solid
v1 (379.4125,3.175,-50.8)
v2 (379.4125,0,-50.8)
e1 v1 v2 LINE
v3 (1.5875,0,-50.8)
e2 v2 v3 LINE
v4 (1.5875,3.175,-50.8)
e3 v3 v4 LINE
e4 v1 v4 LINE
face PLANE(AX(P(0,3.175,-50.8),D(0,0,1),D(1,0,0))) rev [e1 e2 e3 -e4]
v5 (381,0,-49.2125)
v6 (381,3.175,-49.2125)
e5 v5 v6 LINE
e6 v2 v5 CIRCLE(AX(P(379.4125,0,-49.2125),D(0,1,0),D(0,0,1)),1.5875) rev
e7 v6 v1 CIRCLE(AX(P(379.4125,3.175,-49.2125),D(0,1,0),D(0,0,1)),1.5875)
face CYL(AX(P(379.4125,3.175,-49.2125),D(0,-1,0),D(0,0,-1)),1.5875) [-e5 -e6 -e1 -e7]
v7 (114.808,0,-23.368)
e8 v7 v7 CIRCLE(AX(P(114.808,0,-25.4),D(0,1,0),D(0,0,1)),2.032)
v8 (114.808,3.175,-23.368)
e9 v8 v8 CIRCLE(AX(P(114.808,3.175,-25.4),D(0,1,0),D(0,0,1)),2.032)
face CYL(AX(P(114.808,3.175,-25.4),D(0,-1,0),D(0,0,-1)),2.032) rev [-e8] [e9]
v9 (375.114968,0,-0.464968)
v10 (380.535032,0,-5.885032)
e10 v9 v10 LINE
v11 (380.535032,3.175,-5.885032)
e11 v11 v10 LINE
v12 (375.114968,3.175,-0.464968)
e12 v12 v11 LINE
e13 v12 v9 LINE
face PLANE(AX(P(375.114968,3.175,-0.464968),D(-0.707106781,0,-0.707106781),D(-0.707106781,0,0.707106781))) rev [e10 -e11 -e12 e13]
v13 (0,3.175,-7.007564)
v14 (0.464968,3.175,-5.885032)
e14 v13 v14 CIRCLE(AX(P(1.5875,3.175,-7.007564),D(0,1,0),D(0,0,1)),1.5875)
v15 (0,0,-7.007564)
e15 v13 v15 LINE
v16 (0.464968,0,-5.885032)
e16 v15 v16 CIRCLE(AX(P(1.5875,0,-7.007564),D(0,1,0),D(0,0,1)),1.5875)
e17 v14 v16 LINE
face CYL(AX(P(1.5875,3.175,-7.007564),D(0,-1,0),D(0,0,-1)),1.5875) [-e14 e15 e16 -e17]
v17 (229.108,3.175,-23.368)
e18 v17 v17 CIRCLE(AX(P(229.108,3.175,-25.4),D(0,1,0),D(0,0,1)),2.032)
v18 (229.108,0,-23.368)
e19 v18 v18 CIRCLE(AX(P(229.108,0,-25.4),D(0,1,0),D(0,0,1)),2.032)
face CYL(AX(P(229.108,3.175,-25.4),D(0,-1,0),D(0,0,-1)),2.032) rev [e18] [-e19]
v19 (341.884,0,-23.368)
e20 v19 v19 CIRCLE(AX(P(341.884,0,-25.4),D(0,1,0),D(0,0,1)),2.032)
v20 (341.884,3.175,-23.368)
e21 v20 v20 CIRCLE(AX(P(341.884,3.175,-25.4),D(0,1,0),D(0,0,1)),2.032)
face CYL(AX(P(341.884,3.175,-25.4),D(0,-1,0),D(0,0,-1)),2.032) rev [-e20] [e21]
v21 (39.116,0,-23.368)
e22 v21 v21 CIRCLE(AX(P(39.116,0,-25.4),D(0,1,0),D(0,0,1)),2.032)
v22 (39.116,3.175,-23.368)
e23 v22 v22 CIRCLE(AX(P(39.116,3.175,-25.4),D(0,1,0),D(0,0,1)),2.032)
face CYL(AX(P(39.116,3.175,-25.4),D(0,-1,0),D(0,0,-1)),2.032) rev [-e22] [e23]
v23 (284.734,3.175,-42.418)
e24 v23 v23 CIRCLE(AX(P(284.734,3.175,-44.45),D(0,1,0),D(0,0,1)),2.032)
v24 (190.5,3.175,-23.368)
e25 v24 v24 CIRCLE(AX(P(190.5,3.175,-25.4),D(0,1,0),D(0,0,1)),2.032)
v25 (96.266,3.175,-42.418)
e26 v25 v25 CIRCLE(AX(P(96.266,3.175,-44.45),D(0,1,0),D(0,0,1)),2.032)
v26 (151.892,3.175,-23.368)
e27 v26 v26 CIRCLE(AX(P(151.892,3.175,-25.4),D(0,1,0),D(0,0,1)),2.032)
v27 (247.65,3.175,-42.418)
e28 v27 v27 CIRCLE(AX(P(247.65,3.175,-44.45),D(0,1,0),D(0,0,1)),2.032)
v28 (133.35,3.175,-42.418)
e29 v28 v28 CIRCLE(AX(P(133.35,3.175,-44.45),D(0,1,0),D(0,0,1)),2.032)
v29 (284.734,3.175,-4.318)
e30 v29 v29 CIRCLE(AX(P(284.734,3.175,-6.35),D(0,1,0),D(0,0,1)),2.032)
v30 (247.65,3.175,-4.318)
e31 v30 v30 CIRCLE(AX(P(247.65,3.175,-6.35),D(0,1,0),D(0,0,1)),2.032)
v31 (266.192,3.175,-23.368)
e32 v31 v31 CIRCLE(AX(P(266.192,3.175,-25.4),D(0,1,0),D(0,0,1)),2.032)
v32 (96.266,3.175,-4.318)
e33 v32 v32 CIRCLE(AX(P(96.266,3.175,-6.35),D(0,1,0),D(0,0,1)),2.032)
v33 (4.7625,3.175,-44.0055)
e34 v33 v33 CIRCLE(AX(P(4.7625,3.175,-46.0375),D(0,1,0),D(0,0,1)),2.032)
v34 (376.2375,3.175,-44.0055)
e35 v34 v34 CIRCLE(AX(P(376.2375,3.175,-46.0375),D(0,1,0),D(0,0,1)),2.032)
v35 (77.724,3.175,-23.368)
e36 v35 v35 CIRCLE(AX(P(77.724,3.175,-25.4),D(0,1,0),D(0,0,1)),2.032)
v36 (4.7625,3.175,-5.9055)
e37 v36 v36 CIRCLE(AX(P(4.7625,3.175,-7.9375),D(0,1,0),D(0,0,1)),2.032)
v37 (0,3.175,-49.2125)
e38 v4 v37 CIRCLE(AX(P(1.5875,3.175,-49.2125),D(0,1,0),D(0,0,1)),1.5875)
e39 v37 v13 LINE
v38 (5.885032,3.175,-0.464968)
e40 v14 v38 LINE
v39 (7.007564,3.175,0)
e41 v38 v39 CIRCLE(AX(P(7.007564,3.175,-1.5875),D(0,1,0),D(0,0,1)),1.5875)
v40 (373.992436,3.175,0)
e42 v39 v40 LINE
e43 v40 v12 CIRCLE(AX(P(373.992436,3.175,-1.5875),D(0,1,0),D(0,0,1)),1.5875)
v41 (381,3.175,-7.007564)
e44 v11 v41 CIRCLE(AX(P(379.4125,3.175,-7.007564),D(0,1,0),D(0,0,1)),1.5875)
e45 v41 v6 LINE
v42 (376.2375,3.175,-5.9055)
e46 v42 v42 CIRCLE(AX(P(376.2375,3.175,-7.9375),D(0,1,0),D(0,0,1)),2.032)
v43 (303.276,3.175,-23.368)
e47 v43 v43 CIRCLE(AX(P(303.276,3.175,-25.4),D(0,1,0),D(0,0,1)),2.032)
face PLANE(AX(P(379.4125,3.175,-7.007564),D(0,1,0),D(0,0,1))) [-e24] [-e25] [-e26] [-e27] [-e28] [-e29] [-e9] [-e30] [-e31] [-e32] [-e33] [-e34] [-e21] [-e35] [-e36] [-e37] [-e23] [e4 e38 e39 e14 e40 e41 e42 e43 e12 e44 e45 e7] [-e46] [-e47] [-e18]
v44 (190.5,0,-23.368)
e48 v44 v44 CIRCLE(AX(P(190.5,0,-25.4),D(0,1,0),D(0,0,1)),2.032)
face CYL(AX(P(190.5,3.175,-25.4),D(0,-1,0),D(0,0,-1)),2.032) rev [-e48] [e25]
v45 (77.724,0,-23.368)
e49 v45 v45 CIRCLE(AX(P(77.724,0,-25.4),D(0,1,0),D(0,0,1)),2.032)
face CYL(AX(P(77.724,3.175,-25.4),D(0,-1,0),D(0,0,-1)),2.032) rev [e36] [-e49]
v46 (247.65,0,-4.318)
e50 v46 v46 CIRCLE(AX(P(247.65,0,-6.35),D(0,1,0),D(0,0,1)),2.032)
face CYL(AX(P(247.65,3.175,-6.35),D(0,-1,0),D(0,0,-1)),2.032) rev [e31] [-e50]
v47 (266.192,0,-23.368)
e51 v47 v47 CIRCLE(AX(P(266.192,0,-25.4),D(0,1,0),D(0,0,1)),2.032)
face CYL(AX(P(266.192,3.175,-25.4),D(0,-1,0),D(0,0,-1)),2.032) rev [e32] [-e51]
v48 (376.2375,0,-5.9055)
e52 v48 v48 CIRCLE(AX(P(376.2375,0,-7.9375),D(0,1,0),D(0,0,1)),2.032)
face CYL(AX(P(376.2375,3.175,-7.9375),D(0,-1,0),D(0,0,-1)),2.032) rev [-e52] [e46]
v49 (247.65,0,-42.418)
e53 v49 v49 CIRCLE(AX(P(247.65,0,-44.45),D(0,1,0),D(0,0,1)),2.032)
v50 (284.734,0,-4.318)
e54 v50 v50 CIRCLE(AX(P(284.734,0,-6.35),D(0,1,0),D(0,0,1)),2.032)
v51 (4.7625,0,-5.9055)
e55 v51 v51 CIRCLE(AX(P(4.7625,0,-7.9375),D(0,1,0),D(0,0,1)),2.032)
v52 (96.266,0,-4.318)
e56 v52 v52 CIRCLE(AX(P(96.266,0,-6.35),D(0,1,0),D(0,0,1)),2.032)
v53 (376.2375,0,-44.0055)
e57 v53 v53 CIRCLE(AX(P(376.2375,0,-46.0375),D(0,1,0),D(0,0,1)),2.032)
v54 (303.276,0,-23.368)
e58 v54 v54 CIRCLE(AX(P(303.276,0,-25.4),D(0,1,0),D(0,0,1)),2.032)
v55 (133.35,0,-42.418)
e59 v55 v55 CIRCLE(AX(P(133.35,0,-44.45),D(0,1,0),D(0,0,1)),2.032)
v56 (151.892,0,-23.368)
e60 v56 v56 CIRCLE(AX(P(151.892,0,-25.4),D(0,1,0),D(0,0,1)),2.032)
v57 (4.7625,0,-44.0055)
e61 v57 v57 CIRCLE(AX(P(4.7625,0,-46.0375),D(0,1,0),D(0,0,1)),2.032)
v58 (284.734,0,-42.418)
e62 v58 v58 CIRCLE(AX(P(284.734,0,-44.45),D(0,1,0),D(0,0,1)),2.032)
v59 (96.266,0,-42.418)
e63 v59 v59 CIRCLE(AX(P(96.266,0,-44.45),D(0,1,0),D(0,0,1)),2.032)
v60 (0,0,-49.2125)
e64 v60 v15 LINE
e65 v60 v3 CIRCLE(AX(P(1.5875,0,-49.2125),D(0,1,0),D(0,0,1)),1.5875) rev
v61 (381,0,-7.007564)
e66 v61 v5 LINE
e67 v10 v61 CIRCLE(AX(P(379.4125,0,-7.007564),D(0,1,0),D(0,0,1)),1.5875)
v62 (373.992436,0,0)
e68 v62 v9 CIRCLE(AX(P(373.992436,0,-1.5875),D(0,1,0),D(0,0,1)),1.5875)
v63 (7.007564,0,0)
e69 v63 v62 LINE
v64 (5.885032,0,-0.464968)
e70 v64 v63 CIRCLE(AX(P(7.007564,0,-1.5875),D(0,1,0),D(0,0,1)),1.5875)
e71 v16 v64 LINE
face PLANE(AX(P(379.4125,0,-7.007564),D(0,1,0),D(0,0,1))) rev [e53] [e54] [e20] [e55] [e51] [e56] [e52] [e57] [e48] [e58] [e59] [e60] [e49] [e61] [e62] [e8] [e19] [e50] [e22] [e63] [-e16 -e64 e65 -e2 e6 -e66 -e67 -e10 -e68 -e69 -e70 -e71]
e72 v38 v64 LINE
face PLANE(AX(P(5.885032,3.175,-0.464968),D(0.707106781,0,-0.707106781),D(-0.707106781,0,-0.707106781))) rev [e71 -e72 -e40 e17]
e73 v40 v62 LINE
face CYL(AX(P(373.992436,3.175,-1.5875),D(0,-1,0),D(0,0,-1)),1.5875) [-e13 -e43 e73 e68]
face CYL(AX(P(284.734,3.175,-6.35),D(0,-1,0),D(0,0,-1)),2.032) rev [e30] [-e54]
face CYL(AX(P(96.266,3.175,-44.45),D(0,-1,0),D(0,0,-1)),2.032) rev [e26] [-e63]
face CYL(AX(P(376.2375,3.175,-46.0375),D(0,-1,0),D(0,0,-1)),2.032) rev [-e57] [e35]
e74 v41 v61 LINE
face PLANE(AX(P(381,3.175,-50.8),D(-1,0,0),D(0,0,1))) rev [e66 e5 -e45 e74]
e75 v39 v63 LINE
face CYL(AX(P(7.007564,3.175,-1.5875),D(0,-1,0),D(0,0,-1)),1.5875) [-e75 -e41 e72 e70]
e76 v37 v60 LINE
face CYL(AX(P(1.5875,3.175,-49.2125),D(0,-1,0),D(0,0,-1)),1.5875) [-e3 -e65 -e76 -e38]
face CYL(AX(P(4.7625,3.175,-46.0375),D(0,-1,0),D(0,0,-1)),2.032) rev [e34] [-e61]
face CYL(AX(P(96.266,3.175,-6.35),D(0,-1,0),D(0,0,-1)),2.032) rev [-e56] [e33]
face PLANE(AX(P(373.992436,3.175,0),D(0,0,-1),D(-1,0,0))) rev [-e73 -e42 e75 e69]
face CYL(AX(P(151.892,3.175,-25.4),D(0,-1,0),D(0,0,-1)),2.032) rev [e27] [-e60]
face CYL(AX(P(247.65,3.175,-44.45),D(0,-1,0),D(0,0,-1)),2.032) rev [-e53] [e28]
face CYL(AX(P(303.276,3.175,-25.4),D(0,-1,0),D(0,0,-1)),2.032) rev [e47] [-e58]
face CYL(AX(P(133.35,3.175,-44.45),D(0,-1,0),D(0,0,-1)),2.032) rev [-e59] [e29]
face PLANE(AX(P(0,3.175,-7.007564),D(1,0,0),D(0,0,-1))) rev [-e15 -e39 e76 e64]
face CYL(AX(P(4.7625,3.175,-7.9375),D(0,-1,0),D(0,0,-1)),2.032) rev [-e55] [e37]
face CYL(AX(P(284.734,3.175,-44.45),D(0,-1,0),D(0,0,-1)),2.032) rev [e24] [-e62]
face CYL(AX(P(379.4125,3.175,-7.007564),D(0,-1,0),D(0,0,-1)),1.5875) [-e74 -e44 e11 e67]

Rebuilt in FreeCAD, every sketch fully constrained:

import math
import FreeCAD as App
import Part
import Sketcher

V = App.Vector
Q = App.Units.Quantity


def edges_at(feature, points):
    """Names of the edges that pass closest to the given points."""
    edges = feature.Shape.Edges
    near = lambda p: min(range(len(edges)), key=lambda i: edges[i].distToShape(Part.Vertex(*p))[0])
    return sorted({f"Edge{near(p) + 1}" for p in points})

doc = App.newDocument("Part")
body = doc.addObject("PartDesign::Body", "Body")

sketch1 = doc.addObject("Sketcher::SketchObject", "Sketch")
body.addObject(sketch1)
sketch1.AttachmentSupport = (doc.XZ_Plane, [""])
sketch1.MapMode = "FlatFace"
sketch1.addGeometry([
    Part.LineSegment(V(0, -50.8, 0), V(0, -7, 0)),
    Part.ArcOfCircle(Part.Circle(V(1.6, -7, 0), V(0, 0, 1), 1.6), math.radians(135), math.radians(180)),
    Part.LineSegment(V(0.5, -5.9, 0), V(5.9, -0.5, 0)),
    Part.ArcOfCircle(Part.Circle(V(7, -1.6, 0), V(0, 0, 1), 1.6), math.radians(90), math.radians(135)),
    Part.LineSegment(V(7, 0, 0), V(374, 0, 0)),
    Part.ArcOfCircle(Part.Circle(V(374, -1.6, 0), V(0, 0, 1), 1.6), math.radians(45), math.radians(90)),
    Part.LineSegment(V(375.1, -0.5, 0), V(380.5, -5.9, 0)),
    Part.ArcOfCircle(Part.Circle(V(379.4, -7, 0), V(0, 0, 1), 1.6), math.radians(0), math.radians(45)),
    Part.LineSegment(V(381, -7, 0), V(381, -50.8, 0)),
    Part.LineSegment(V(381, -50.8, 0), V(0, -50.8, 0)),
], False)
sketch1.addConstraint([
    Sketcher.Constraint("Tangent", 0, 2, 1, 2),
    Sketcher.Constraint("Tangent", 1, 1, 2, 1),
    Sketcher.Constraint("Tangent", 2, 2, 3, 2),
    Sketcher.Constraint("Tangent", 3, 1, 4, 1),
    Sketcher.Constraint("Tangent", 4, 2, 5, 2),
    Sketcher.Constraint("Tangent", 5, 1, 6, 1),
    Sketcher.Constraint("Tangent", 6, 2, 7, 2),
    Sketcher.Constraint("Tangent", 7, 1, 8, 1),
    Sketcher.Constraint("Coincident", 8, 2, 9, 1),
    Sketcher.Constraint("Coincident", 9, 2, 0, 1),
    Sketcher.Constraint("Vertical", 0),
    Sketcher.Constraint("Horizontal", 4),
    Sketcher.Constraint("Vertical", 8),
    Sketcher.Constraint("Horizontal", 9),
    Sketcher.Constraint("Equal", 1, 3),
    Sketcher.Constraint("Equal", 3, 5),
    Sketcher.Constraint("Equal", 5, 7),
    Sketcher.Constraint("PointOnObject", 0, 2, -2),
    Sketcher.Constraint("PointOnObject", 3, 1, -1),
    Sketcher.Constraint("Perpendicular", 2, 6),
    Sketcher.Constraint("Horizontal", 1, 3, 7, 3),
    Sketcher.Constraint("Horizontal", 2, 2, 5, 1),
    Sketcher.Constraint("DistanceX", 9, 2, 9, 1, Q("15 in")),
    Sketcher.Constraint("DistanceY", 8, 2, -1, 1, Q("2 in")),
    Sketcher.Constraint("Radius", 1, Q("0.0625 in")),
    Sketcher.Constraint("DistanceX", 4, 1, 4, 2, Q("366.984872 mm")),
])
pad1 = doc.addObject("PartDesign::Pad", "Pad")
body.addObject(pad1)
pad1.Profile = sketch1
pad1.Length = Q("0.125 in")
pad1.Reversed = True

sketch2 = doc.addObject("Sketcher::SketchObject", "Sketch001")
body.addObject(sketch2)
sketch2.AttachmentSupport = (doc.XZ_Plane, [""])
sketch2.MapMode = "FlatFace"
sketch2.addGeometry([
    Part.Circle(V(4.8, -7.9, 0), V(0, 0, 1), 2),
    Part.Circle(V(4.8, -46, 0), V(0, 0, 1), 2),
    Part.Circle(V(376.2, -7.9, 0), V(0, 0, 1), 2),
    Part.Circle(V(376.2, -46, 0), V(0, 0, 1), 2),
    Part.Circle(V(341.9, -25.4, 0), V(0, 0, 1), 2),
    Part.Circle(V(247.7, -44.5, 0), V(0, 0, 1), 2),
    Part.Circle(V(284.7, -44.5, 0), V(0, 0, 1), 2),
    Part.Circle(V(247.7, -6.3, 0), V(0, 0, 1), 2),
    Part.Circle(V(284.7, -6.3, 0), V(0, 0, 1), 2),
    Part.Circle(V(190.5, -25.4, 0), V(0, 0, 1), 2),
    Part.Circle(V(133.3, -44.5, 0), V(0, 0, 1), 2),
    Part.Circle(V(96.3, -44.5, 0), V(0, 0, 1), 2),
    Part.Circle(V(96.3, -6.3, 0), V(0, 0, 1), 2),
    Part.Circle(V(77.7, -25.4, 0), V(0, 0, 1), 2),
    Part.Circle(V(39.1, -25.4, 0), V(0, 0, 1), 2),
    Part.Circle(V(151.9, -25.4, 0), V(0, 0, 1), 2),
    Part.Circle(V(229.1, -25.4, 0), V(0, 0, 1), 2),
    Part.Circle(V(266.2, -25.4, 0), V(0, 0, 1), 2),
    Part.Circle(V(303.3, -25.4, 0), V(0, 0, 1), 2),
    Part.Circle(V(114.8, -25.4, 0), V(0, 0, 1), 2),
], False)
sketch2.addConstraint([
    Sketcher.Constraint("Equal", 0, 1),
    Sketcher.Constraint("Equal", 1, 2),
    Sketcher.Constraint("Equal", 2, 3),
    Sketcher.Constraint("Equal", 3, 4),
    Sketcher.Constraint("Equal", 4, 5),
    Sketcher.Constraint("Equal", 5, 6),
    Sketcher.Constraint("Equal", 6, 7),
    Sketcher.Constraint("Equal", 7, 8),
    Sketcher.Constraint("Equal", 8, 9),
    Sketcher.Constraint("Equal", 9, 10),
    Sketcher.Constraint("Equal", 10, 11),
    Sketcher.Constraint("Equal", 11, 12),
    Sketcher.Constraint("Equal", 12, 13),
    Sketcher.Constraint("Equal", 13, 14),
    Sketcher.Constraint("Equal", 14, 15),
    Sketcher.Constraint("Equal", 15, 16),
    Sketcher.Constraint("Equal", 16, 17),
    Sketcher.Constraint("Equal", 17, 18),
    Sketcher.Constraint("Equal", 18, 19),
    Sketcher.Constraint("Horizontal", 0, 3, 2, 3),
    Sketcher.Constraint("Horizontal", 1, 3, 3, 3),
    Sketcher.Constraint("Horizontal", 5, 3, 6, 3),
    Sketcher.Constraint("Horizontal", 7, 3, 8, 3),
    Sketcher.Constraint("Horizontal", 4, 3, 9, 3),
    Sketcher.Constraint("Horizontal", 6, 3, 10, 3),
    Sketcher.Constraint("Horizontal", 10, 3, 11, 3),
    Sketcher.Constraint("Horizontal", 8, 3, 12, 3),
    Sketcher.Constraint("Horizontal", 9, 3, 13, 3),
    Sketcher.Constraint("Horizontal", 13, 3, 14, 3),
    Sketcher.Constraint("Horizontal", 14, 3, 15, 3),
    Sketcher.Constraint("Horizontal", 15, 3, 16, 3),
    Sketcher.Constraint("Horizontal", 16, 3, 17, 3),
    Sketcher.Constraint("Horizontal", 17, 3, 18, 3),
    Sketcher.Constraint("Horizontal", 18, 3, 19, 3),
    Sketcher.Constraint("Vertical", 0, 3, 1, 3),
    Sketcher.Constraint("Vertical", 2, 3, 3, 3),
    Sketcher.Constraint("Vertical", 5, 3, 7, 3),
    Sketcher.Constraint("Vertical", 6, 3, 8, 3),
    Sketcher.Constraint("Vertical", 11, 3, 12, 3),
    Sketcher.Constraint("Diameter", 0, Q("0.16 in")),
    Sketcher.Constraint("DistanceY", 4, 3, -1, 1, Q("1 in")),
    Sketcher.Constraint("DistanceX", -1, 1, 9, 3, Q("7.5 in")),
    Sketcher.Constraint("DistanceY", 1, 3, 0, 3, Q("1.5 in")),
    Sketcher.Constraint("DistanceY", 5, 3, 7, 3, Q("1.5 in")),
    Sketcher.Constraint("DistanceX", 10, 3, 5, 3, Q("4.5 in")),
    Sketcher.Constraint("DistanceX", -1, 1, 4, 3, Q("13.46 in")),
    Sketcher.Constraint("DistanceX", -1, 1, 5, 3, Q("9.75 in")),
    Sketcher.Constraint("DistanceY", 5, 3, -1, 1, Q("1.75 in")),
    Sketcher.Constraint("DistanceX", -1, 1, 6, 3, Q("11.21 in")),
    Sketcher.Constraint("DistanceX", -1, 1, 11, 3, Q("3.79 in")),
    Sketcher.Constraint("DistanceX", -1, 1, 13, 3, Q("3.06 in")),
    Sketcher.Constraint("DistanceX", -1, 1, 14, 3, Q("1.54 in")),
    Sketcher.Constraint("DistanceX", -1, 1, 15, 3, Q("5.98 in")),
    Sketcher.Constraint("DistanceX", -1, 1, 16, 3, Q("9.02 in")),
    Sketcher.Constraint("DistanceX", -1, 1, 17, 3, Q("10.48 in")),
    Sketcher.Constraint("DistanceX", -1, 1, 18, 3, Q("11.94 in")),
    Sketcher.Constraint("DistanceX", -1, 1, 19, 3, Q("4.52 in")),
    Sketcher.Constraint("DistanceX", -1, 1, 0, 3, Q("0.1875 in")),
    Sketcher.Constraint("DistanceY", 0, 3, -1, 1, Q("0.3125 in")),
    Sketcher.Constraint("DistanceX", -1, 1, 2, 3, Q("14.8125 in")),
])
pocket1 = doc.addObject("PartDesign::Pocket", "Pocket")
body.addObject(pocket1)
pocket1.Profile = sketch2
pocket1.Type = "ThroughAll"
doc.recompute()

fillet = doc.addObject("PartDesign::Fillet", "Fillet")
body.addObject(fillet)
fillet.Base = (pocket1, edges_at(pocket1, [(381, 1.587, -50.8), (0, 1.587, -50.8)]))
fillet.Radius = Q("0.0625 in")

doc.recompute()
